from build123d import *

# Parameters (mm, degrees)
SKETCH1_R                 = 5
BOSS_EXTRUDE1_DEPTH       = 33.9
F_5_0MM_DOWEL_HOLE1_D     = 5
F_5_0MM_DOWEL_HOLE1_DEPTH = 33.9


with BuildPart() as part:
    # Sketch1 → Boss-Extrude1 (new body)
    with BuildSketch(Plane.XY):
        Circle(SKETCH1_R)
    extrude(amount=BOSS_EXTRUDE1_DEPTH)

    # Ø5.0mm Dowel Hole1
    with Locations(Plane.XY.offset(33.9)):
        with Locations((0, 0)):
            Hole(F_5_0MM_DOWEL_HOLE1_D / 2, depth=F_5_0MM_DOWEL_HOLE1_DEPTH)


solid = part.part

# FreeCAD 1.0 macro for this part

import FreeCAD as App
import Part
import Sketcher
from FreeCAD import Vector
Q = App.Units.Quantity

doc = App.newDocument("Part")
body = doc.addObject("PartDesign::Body", "Body")

sketch1 = body.newObject("Sketcher::SketchObject", "Sketch")
sketch1.AttachmentSupport = (doc.getObject("XY_Plane"), [""])
sketch1.MapMode = "FlatFace"
sketch1.addGeometry(Part.Circle(Vector(0, 0, 0), Vector(0, 0, 1), 5), False)
sketch1.addConstraint(Sketcher.Constraint("Coincident", 0, 3, -1, 1))
sketch1.addConstraint(Sketcher.Constraint("Diameter", 0, Q("10 mm")))
pad1 = body.newObject("PartDesign::Pad", "Pad")
pad1.Profile = sketch1
pad1.Length = 33.9

sketch2 = body.newObject("Sketcher::SketchObject", "Sketch001")
sketch2.AttachmentSupport = (doc.getObject("XY_Plane"), [""])
sketch2.MapMode = "FlatFace"
sketch2.AttachmentOffset = App.Placement(Vector(0, 0, 33.9), App.Rotation())
sketch2.addGeometry(Part.Circle(Vector(0, 0, 0), Vector(0, 0, 1), 2.5), False)
sketch2.addConstraint(Sketcher.Constraint("Coincident", 0, 3, -1, 1))
sketch2.addConstraint(Sketcher.Constraint("Diameter", 0, Q("5 mm")))
doc.recompute()
hole = body.newObject("PartDesign::Hole", "Hole")
hole.Profile = sketch2
hole.ThreadType = "None"
hole.Diameter = 5
hole.DepthType = "Dimension"
hole.Depth = 33.9
hole.DrillPoint = "Flat"

doc.recompute()
